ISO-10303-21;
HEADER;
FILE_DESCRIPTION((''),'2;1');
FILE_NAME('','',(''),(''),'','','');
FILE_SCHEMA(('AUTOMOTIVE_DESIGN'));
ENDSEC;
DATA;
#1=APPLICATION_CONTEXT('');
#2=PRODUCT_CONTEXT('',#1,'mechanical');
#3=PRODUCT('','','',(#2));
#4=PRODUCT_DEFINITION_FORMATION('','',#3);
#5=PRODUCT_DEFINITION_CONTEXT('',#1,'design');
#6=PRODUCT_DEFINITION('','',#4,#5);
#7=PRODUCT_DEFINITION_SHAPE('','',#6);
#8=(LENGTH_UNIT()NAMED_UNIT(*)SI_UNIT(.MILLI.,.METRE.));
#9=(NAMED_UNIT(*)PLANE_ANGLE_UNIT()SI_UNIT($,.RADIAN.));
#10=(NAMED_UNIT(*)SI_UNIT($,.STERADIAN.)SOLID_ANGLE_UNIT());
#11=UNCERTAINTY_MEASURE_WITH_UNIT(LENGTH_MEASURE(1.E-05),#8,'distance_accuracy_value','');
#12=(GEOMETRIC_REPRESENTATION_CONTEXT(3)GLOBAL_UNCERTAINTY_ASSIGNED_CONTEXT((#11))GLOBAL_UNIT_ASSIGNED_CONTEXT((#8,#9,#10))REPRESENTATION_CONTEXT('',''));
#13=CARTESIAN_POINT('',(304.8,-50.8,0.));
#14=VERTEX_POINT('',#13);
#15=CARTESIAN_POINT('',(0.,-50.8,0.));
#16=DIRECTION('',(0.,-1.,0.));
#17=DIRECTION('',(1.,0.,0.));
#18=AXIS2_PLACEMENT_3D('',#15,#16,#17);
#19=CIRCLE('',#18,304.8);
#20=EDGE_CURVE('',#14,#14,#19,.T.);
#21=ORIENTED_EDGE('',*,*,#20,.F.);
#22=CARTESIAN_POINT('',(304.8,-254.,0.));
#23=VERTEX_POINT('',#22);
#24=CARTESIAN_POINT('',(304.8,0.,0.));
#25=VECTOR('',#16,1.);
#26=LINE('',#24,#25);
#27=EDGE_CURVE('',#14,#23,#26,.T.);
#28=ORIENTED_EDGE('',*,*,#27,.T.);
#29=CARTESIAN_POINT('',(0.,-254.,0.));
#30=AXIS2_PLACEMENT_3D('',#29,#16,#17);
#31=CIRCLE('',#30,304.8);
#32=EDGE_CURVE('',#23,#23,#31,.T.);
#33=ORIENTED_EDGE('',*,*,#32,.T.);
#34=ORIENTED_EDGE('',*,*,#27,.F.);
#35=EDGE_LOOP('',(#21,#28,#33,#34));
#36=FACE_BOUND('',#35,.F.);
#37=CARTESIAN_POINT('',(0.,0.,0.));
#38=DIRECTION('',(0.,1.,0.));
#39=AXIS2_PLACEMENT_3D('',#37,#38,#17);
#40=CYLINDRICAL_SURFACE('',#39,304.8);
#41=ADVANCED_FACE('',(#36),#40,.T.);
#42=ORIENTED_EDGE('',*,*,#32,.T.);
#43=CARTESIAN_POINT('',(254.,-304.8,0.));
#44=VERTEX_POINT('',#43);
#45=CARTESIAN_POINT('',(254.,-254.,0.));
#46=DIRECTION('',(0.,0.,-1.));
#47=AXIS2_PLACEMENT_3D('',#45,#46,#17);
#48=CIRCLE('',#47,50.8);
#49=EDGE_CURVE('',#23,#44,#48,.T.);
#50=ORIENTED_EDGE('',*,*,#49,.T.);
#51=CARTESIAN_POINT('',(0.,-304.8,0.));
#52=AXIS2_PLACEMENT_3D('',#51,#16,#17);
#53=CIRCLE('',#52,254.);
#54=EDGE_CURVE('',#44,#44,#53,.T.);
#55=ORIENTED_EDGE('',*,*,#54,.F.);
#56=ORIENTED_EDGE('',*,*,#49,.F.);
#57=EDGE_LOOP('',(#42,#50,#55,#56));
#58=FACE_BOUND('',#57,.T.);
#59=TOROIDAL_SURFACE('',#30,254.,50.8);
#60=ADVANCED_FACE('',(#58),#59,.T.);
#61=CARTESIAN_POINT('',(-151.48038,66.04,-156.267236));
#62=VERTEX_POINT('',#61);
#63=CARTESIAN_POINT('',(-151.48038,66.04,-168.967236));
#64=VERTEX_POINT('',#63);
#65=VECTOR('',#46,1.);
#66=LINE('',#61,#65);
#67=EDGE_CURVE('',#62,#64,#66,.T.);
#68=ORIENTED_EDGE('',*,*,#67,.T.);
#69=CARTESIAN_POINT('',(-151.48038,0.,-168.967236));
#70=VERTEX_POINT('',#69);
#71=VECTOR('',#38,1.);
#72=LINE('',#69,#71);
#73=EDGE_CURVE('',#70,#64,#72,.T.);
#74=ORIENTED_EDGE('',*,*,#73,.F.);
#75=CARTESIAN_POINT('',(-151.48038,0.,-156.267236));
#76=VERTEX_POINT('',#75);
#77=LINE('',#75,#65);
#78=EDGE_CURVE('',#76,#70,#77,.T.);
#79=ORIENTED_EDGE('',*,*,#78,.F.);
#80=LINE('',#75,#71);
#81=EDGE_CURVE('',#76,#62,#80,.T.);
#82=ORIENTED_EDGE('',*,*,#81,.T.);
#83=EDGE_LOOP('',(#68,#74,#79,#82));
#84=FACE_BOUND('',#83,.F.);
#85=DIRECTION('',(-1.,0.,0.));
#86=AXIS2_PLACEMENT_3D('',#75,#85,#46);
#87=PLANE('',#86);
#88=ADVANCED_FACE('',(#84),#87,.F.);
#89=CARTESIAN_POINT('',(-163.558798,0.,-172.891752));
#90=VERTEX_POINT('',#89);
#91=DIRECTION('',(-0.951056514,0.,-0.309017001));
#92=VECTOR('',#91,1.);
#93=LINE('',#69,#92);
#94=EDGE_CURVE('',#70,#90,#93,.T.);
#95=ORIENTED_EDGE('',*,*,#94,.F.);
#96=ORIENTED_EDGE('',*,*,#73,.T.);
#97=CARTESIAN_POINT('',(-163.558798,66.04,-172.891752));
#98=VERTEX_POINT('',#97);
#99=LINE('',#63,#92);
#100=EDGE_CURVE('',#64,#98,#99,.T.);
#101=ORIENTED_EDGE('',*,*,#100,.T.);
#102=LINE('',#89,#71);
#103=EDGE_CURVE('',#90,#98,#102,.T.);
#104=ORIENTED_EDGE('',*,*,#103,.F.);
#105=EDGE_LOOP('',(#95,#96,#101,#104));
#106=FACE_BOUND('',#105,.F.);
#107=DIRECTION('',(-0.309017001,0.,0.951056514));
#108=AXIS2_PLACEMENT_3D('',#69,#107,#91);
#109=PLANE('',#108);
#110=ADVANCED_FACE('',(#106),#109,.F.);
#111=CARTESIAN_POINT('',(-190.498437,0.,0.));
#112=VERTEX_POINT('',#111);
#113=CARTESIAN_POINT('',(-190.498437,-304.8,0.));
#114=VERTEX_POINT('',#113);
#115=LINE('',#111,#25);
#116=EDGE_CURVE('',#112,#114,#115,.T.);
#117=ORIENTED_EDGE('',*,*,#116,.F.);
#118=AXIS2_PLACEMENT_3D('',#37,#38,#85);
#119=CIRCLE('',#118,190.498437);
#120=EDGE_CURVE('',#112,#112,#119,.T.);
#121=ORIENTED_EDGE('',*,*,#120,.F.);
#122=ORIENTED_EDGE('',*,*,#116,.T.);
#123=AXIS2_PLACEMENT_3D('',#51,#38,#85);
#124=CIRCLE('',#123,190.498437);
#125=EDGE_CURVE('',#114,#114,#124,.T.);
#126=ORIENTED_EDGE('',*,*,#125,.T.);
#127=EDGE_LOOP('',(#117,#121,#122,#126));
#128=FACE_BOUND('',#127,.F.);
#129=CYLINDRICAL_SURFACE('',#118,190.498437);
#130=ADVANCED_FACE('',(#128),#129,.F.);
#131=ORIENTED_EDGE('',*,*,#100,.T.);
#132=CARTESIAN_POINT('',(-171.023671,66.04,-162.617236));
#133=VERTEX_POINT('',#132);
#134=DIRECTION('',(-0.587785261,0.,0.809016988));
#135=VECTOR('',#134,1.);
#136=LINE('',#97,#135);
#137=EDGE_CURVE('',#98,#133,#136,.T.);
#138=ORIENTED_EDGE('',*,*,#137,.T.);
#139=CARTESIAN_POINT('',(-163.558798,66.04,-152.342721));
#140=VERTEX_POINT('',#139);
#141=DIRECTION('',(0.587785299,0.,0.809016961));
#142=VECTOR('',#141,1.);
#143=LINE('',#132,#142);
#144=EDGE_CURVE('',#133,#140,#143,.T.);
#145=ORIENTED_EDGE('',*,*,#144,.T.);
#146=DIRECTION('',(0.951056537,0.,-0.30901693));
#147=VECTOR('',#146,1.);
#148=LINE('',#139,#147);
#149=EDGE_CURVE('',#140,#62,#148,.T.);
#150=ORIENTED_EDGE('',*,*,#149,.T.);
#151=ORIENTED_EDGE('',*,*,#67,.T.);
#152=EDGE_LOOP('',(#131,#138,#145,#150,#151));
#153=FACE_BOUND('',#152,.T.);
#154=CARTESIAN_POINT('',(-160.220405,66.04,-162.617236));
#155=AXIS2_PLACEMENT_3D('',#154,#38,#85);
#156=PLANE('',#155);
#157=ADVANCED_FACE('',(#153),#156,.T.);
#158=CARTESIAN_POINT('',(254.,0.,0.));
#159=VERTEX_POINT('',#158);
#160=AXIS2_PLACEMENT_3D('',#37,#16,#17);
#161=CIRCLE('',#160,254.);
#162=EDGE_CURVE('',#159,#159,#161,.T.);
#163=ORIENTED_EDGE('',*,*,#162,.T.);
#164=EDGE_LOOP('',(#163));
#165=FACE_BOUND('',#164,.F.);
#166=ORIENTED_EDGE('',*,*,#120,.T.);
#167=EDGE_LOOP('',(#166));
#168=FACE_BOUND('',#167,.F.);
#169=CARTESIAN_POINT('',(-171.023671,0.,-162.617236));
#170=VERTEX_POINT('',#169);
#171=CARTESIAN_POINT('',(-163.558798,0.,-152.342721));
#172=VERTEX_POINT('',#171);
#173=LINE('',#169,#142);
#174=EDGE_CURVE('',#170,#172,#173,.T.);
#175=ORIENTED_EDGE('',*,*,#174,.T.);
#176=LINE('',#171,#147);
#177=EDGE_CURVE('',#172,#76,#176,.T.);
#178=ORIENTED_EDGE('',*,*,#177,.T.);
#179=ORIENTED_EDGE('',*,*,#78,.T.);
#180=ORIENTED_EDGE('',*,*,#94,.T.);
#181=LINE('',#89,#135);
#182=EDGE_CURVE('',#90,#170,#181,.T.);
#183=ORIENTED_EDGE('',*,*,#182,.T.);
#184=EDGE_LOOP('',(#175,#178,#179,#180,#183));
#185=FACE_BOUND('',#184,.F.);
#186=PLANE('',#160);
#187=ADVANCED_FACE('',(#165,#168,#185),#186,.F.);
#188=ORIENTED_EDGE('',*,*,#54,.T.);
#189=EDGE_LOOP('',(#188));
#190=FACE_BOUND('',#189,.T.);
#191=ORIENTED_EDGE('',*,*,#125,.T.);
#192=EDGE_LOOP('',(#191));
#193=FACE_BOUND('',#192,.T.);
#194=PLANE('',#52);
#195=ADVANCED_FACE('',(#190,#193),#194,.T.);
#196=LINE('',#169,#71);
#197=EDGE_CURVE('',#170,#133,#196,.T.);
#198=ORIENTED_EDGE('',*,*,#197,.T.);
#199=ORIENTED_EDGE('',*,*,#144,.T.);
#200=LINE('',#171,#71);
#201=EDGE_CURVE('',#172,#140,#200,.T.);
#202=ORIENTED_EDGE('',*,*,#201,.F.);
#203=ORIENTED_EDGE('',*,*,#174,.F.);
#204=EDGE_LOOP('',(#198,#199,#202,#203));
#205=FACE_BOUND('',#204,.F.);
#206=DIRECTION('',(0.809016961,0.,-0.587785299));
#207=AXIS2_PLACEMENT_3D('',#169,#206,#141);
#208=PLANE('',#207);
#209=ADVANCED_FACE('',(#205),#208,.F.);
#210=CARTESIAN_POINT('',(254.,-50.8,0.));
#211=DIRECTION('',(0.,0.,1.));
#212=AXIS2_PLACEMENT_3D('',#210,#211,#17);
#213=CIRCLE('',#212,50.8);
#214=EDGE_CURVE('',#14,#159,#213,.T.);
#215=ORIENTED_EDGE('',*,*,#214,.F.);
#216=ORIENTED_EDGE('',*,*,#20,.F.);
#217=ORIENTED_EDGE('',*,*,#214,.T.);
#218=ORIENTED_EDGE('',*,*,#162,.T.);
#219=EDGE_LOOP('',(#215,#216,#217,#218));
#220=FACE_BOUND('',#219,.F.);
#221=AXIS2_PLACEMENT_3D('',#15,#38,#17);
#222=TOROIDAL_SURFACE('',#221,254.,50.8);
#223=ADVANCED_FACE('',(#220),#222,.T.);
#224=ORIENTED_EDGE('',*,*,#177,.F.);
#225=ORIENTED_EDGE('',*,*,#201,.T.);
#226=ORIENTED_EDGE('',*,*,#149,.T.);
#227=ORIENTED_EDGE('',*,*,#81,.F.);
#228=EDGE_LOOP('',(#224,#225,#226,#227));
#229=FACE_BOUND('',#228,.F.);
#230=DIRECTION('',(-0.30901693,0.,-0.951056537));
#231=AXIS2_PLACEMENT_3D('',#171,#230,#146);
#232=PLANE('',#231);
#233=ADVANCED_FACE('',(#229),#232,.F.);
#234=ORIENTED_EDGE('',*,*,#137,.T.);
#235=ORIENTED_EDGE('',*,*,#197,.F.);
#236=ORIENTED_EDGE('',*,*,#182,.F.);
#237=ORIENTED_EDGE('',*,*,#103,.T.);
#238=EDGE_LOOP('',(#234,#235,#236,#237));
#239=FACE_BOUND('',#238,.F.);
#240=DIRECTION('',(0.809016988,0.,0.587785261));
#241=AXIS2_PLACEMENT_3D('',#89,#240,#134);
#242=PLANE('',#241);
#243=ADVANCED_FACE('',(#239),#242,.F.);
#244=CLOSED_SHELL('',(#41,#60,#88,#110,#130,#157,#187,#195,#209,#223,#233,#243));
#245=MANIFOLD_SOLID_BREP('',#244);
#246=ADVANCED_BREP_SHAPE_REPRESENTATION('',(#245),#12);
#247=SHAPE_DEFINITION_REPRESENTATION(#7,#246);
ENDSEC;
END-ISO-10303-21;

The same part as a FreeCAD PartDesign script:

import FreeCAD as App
import Part
import Sketcher
Q = App.Units.Quantity


def edges_at(feature, points):
    """Names of the edges that pass closest to the given points."""
    edges = feature.Shape.Edges
    near = lambda p: min(range(len(edges)), key=lambda i: edges[i].distToShape(Part.Vertex(*p))[0])
    return sorted({f"Edge{near(p) + 1}" for p in points})


def add_polygon(sketch, points):
    """Adds a closed chain of lines whose ends are joined by coincident constraints."""
    first, n = sketch.GeometryCount, len(points)
    for a, b in zip(points, points[1:] + points[:1]):
        sketch.addGeometry(Part.LineSegment(App.Vector(*a, 0), App.Vector(*b, 0)), False)
    for i in range(n):
        sketch.addConstraint(Sketcher.Constraint("Coincident", first + i, 2, first + (i + 1) % n, 1))

doc = App.newDocument("Part")
params = doc.addObject("Spreadsheet::Sheet", "Params")
for row, (alias, value) in enumerate([
    ("sketch1_diameter", "24 in"),
    ("pad1_length", "12 in"),
    ("pocket1_length", "25.4 in"),
    ("fillet_radius", "2 in"),
    ("sketch3_height", "0.5 in"),
    ("pad2_length", "2.6 in"),
], start=1):
    params.set(f"A{row}", alias)
    params.set(f"B{row}", "=" + value)
    params.setAlias(f"B{row}", alias)

body = doc.addObject("PartDesign::Body", "Body")

sketch1 = doc.addObject("Sketcher::SketchObject", "Sketch")
body.addObject(sketch1)
sketch1.AttachmentSupport = (doc.XZ_Plane, [""])
sketch1.MapMode = "FlatFace"
sketch1.addGeometry(Part.Circle(App.Vector(0, 0, 0), App.Vector(0, 0, 1), 305), False)
sketch1.addConstraint([
    Sketcher.Constraint("Coincident", 0, 3, -1, 1),
    Sketcher.Constraint("Diameter", 0, Q("24 in")),
])
sketch1.setExpression("Constraints[1]", "Params.sketch1_diameter")
pad1 = doc.addObject("PartDesign::Pad", "Pad")
body.addObject(pad1)
pad1.Profile = sketch1
pad1.setExpression("Length", "Params.pad1_length")

sketch2 = doc.addObject("Sketcher::SketchObject", "Sketch001")
body.addObject(sketch2)
sketch2.AttachmentSupport = (doc.XZ_Plane, [""])
sketch2.MapMode = "FlatFace"
sketch2.addGeometry(Part.Circle(App.Vector(0, 0, 0), App.Vector(0, 0, 1), 190), False)
sketch2.addConstraint([
    Sketcher.Constraint("Coincident", 0, 3, -1, 1),
    Sketcher.Constraint("Diameter", 0, 380.996874),
])
pocket1 = doc.addObject("PartDesign::Pocket", "Pocket")
body.addObject(pocket1)
pocket1.Profile = sketch2
pocket1.setExpression("Length", "Params.pocket1_length")
pocket1.Reversed = True
doc.recompute()

fillet = doc.addObject("PartDesign::Fillet", "Fillet")
body.addObject(fillet)
fillet.Base = (pocket1, edges_at(pocket1, [(-304.8, -304.8, 0), (-304.8, 0, 0)]))
fillet.setExpression("Radius", "Params.fillet_radius")

sketch3 = doc.addObject("Sketcher::SketchObject", "Sketch002")
body.addObject(sketch3)
sketch3.AttachmentSupport = (doc.XZ_Plane, [""])
sketch3.MapMode = "FlatFace"
add_polygon(sketch3, [(-151, -156), (-151, -169), (-164, -173), (-171, -163), (-164, -152)])
sketch3.addConstraint([
    Sketcher.Constraint("Vertical", 0),
    Sketcher.Constraint("Vertical", 1, 2, 3, 2),
    Sketcher.Constraint("Equal", 1, 2),
    Sketcher.Constraint("Equal", 2, 3),
    Sketcher.Constraint("Equal", 3, 4),
    Sketcher.Constraint("DistanceY", 0, 2, 0, 1, Q("0.5 in")),
    Sketcher.Constraint("Angle", 1, Q("-162 deg")),
    Sketcher.Constraint("Angle", 2, Q("126.000001 deg")),
    Sketcher.Constraint("DistanceX", 1, 2, -1, 1, 163.558798),
    Sketcher.Constraint("DistanceY", 1, 2, -1, 1, 172.891752),
])
sketch3.setExpression("Constraints[10]", "Params.sketch3_height")
pad2 = doc.addObject("PartDesign::Pad", "Pad001")
body.addObject(pad2)
pad2.Profile = sketch3
pad2.setExpression("Length", "Params.pad2_length")
pad2.Reversed = True

doc.recompute()
